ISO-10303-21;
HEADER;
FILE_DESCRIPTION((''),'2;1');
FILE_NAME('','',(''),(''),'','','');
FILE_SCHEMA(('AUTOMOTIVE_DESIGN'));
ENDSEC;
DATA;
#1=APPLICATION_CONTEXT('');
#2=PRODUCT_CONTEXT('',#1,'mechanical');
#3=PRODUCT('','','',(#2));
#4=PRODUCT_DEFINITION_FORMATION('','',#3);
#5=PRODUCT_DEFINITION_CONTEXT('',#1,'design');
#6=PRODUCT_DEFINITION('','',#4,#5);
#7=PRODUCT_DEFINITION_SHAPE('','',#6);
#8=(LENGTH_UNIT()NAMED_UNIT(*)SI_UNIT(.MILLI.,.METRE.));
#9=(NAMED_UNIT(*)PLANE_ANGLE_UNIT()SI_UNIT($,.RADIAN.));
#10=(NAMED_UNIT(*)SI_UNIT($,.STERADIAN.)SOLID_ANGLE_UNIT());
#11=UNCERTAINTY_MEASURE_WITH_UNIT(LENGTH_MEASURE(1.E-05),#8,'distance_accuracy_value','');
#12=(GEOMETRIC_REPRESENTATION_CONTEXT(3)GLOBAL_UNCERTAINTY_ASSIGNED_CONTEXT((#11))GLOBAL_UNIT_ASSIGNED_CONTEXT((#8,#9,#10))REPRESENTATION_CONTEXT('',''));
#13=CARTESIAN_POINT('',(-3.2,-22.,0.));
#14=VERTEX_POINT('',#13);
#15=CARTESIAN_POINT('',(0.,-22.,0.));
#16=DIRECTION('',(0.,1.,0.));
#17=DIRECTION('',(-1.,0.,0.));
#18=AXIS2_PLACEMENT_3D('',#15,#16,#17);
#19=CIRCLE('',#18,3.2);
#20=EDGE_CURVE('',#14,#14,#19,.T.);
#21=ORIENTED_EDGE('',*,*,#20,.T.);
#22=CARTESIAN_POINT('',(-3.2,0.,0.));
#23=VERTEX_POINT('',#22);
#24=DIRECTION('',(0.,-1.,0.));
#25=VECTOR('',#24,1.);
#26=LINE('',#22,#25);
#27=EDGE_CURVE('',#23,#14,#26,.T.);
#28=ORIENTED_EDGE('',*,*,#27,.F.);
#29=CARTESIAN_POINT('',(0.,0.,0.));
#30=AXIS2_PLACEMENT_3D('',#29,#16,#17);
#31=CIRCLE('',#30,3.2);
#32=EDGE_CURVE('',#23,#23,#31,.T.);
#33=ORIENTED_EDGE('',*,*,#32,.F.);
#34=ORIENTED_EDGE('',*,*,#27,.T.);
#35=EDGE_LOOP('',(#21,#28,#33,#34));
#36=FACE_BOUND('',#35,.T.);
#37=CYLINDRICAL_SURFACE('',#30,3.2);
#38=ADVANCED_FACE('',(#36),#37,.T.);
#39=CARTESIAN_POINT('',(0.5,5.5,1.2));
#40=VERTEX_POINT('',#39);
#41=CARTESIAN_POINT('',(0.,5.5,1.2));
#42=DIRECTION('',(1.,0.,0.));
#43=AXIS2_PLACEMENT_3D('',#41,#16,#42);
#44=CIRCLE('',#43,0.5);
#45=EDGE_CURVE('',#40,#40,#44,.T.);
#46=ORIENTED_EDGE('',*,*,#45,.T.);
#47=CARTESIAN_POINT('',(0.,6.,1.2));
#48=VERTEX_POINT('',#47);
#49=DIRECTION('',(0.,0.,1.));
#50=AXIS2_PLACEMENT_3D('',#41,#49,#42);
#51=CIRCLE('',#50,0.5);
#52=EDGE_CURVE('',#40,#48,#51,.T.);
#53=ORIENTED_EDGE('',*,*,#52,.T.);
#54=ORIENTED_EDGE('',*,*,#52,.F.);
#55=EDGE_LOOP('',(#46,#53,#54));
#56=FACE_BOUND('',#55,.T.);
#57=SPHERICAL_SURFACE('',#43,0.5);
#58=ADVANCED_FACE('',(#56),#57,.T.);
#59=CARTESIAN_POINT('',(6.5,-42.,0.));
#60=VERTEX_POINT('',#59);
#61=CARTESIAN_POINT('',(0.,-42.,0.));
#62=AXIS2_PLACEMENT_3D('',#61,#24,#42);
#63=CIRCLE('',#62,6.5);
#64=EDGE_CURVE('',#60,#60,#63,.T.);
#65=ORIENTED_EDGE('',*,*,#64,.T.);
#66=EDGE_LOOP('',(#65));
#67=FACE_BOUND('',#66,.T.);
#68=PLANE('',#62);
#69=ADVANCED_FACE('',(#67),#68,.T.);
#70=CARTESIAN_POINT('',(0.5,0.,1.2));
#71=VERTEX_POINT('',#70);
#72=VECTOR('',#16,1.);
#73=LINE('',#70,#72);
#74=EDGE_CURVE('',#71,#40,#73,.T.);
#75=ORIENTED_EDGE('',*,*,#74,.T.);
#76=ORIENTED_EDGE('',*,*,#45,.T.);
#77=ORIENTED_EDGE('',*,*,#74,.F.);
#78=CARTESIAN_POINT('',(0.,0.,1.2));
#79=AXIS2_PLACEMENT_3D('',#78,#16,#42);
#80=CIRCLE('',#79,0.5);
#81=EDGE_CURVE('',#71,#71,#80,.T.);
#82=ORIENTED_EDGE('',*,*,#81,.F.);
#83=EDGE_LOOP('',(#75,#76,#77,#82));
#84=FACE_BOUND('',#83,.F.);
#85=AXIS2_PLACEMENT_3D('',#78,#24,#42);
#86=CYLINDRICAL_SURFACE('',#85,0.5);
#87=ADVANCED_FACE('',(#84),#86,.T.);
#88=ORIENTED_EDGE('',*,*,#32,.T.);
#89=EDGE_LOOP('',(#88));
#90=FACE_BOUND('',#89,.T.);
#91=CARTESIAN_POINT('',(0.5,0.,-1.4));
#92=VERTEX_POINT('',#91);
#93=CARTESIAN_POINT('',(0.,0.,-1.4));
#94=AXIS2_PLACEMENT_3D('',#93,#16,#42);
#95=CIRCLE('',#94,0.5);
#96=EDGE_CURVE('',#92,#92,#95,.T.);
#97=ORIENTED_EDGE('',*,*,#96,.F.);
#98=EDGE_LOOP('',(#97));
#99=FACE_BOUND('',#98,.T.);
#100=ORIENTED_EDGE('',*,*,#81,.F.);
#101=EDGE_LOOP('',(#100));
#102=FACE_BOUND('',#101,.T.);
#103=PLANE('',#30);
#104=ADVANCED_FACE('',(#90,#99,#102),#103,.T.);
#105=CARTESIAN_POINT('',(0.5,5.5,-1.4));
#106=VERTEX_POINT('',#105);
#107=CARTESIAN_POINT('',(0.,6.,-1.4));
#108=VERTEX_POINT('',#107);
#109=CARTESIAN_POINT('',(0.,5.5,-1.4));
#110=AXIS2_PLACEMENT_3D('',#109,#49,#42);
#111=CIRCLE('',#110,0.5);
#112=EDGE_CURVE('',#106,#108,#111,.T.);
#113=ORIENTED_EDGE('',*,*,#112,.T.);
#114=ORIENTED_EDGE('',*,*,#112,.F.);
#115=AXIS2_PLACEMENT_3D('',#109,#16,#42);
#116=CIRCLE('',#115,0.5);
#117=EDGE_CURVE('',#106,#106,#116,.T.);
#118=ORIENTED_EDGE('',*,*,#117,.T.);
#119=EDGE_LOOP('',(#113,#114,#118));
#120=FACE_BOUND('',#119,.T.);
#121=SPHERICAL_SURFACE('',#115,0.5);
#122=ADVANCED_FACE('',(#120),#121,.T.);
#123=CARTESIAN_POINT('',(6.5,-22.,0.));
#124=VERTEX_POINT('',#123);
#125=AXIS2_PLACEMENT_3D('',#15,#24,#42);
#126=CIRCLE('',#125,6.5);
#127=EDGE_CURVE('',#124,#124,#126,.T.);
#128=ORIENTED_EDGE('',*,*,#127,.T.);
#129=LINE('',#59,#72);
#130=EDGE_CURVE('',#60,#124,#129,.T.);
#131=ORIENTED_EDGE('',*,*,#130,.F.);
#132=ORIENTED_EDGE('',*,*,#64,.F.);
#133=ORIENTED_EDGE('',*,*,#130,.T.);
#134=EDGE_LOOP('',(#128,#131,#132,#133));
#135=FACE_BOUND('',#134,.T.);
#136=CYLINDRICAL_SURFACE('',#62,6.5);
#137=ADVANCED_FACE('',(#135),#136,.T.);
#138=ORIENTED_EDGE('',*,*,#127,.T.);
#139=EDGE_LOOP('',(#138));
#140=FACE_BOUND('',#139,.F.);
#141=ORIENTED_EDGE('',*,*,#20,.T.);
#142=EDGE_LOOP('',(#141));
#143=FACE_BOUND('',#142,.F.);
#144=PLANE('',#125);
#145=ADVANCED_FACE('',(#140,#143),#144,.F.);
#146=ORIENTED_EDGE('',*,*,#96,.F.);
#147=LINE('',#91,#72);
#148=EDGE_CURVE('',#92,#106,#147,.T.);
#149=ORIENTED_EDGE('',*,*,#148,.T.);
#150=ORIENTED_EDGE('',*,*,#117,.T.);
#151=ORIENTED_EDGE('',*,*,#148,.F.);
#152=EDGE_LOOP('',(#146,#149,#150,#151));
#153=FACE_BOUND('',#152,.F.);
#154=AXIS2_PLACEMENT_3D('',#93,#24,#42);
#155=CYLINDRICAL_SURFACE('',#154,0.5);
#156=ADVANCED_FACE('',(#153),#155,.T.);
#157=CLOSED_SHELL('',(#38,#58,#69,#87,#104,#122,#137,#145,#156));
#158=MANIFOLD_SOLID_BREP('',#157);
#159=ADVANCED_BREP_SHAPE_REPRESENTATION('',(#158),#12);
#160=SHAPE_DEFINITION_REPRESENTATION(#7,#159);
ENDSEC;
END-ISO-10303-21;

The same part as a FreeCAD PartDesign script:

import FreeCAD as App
import Part
import Sketcher
from FreeCAD import Vector


def edges_at(feature, points):
    """Names of the edges that pass closest to the given points."""
    edges = feature.Shape.Edges
    near = lambda p: min(range(len(edges)), key=lambda i: edges[i].distToShape(Part.Vertex(*p))[0])
    return sorted({f"Edge{near(p) + 1}" for p in points})

doc = App.newDocument("Part")
params = doc.addObject("Spreadsheet::Sheet", "Params")
for row, (alias, value) in enumerate([
    ("sketch1_diameter", "6.4 mm"),
    ("pad1_length", "42 mm"),
    ("sketch2_diameter", "13 mm"),
    ("pad2_length", "20 mm"),
    ("sketch3_diameter", "1 mm"),
    ("pad3_length", "6 mm"),
    ("fillet_radius", "0.5 mm"),
], start=1):
    params.set(f"A{row}", alias)
    params.set(f"B{row}", "=" + value)
    params.setAlias(f"B{row}", alias)

body = doc.addObject("PartDesign::Body", "Body")

# Sketch on XZ plane
sketch1 = doc.addObject("Sketcher::SketchObject", "Sketch")
body.addObject(sketch1)
sketch1.AttachmentSupport = (doc.XZ_Plane, [""])
sketch1.MapMode = "FlatFace"
sketch1.addGeometry(Part.Circle(Vector(0, 0, 0), Vector(0, 0, 1), 3.2), False)
sketch1.addConstraint([
    Sketcher.Constraint("Coincident", 0, 3, -1, 1),
    Sketcher.Constraint("Diameter", 0, 6.4),
])
sketch1.setExpression("Constraints[1]", "Params.sketch1_diameter")
pad1 = doc.addObject("PartDesign::Pad", "Pad")
body.addObject(pad1)
pad1.Profile = sketch1
pad1.setExpression("Length", "Params.pad1_length")

# Sketch on XZ plane
sketch2 = doc.addObject("Sketcher::SketchObject", "Sketch001")
body.addObject(sketch2)
sketch2.AttachmentSupport = (doc.XZ_Plane, [""])
sketch2.MapMode = "FlatFace"
sketch2.AttachmentOffset = App.Placement(Vector(0, 0, 42), App.Rotation())
sketch2.addGeometry(Part.Circle(Vector(0, 0, 0), Vector(0, 0, 1), 6.5), False)
sketch2.addConstraint([
    Sketcher.Constraint("Coincident", 0, 3, -1, 1),
    Sketcher.Constraint("Diameter", 0, 13.0),
])
sketch2.setExpression("Constraints[1]", "Params.sketch2_diameter")
pad2 = doc.addObject("PartDesign::Pad", "Pad001")
body.addObject(pad2)
pad2.Profile = sketch2
pad2.setExpression("Length", "Params.pad2_length")
pad2.Reversed = True

# Sketch on XZ plane
sketch3 = doc.addObject("Sketcher::SketchObject", "Sketch002")
body.addObject(sketch3)
sketch3.AttachmentSupport = (doc.XZ_Plane, [""])
sketch3.MapMode = "FlatFace"
sketch3.addGeometry([
    Part.Circle(Vector(0, 1.2, 0), Vector(0, 0, 1), 0.5),
    Part.Circle(Vector(0, -1.4, 0), Vector(0, 0, 1), 0.5),
], False)
sketch3.addConstraint([
    Sketcher.Constraint("Equal", 0, 1),
    Sketcher.Constraint("PointOnObject", 0, 3, -2),
    Sketcher.Constraint("PointOnObject", 1, 3, -2),
    Sketcher.Constraint("Diameter", 0, 1.0),
    Sketcher.Constraint("DistanceY", 1, 3, 0, 3, 2.6),
    Sketcher.Constraint("DistanceY", -1, 1, 0, 3, 1.2),
])
sketch3.setExpression("Constraints[3]", "Params.sketch3_diameter")
pad3 = doc.addObject("PartDesign::Pad", "Pad002")
body.addObject(pad3)
pad3.Profile = sketch3
pad3.setExpression("Length", "Params.pad3_length")
pad3.Reversed = True
doc.recompute()

fillet = doc.addObject("PartDesign::Fillet", "Fillet")
body.addObject(fillet)
fillet.Base = (pad3, edges_at(pad3, [(-0.5, 6, -1.4), (-0.5, 6, 1.2)]))
fillet.setExpression("Radius", "Params.fillet_radius")

doc.recompute()
